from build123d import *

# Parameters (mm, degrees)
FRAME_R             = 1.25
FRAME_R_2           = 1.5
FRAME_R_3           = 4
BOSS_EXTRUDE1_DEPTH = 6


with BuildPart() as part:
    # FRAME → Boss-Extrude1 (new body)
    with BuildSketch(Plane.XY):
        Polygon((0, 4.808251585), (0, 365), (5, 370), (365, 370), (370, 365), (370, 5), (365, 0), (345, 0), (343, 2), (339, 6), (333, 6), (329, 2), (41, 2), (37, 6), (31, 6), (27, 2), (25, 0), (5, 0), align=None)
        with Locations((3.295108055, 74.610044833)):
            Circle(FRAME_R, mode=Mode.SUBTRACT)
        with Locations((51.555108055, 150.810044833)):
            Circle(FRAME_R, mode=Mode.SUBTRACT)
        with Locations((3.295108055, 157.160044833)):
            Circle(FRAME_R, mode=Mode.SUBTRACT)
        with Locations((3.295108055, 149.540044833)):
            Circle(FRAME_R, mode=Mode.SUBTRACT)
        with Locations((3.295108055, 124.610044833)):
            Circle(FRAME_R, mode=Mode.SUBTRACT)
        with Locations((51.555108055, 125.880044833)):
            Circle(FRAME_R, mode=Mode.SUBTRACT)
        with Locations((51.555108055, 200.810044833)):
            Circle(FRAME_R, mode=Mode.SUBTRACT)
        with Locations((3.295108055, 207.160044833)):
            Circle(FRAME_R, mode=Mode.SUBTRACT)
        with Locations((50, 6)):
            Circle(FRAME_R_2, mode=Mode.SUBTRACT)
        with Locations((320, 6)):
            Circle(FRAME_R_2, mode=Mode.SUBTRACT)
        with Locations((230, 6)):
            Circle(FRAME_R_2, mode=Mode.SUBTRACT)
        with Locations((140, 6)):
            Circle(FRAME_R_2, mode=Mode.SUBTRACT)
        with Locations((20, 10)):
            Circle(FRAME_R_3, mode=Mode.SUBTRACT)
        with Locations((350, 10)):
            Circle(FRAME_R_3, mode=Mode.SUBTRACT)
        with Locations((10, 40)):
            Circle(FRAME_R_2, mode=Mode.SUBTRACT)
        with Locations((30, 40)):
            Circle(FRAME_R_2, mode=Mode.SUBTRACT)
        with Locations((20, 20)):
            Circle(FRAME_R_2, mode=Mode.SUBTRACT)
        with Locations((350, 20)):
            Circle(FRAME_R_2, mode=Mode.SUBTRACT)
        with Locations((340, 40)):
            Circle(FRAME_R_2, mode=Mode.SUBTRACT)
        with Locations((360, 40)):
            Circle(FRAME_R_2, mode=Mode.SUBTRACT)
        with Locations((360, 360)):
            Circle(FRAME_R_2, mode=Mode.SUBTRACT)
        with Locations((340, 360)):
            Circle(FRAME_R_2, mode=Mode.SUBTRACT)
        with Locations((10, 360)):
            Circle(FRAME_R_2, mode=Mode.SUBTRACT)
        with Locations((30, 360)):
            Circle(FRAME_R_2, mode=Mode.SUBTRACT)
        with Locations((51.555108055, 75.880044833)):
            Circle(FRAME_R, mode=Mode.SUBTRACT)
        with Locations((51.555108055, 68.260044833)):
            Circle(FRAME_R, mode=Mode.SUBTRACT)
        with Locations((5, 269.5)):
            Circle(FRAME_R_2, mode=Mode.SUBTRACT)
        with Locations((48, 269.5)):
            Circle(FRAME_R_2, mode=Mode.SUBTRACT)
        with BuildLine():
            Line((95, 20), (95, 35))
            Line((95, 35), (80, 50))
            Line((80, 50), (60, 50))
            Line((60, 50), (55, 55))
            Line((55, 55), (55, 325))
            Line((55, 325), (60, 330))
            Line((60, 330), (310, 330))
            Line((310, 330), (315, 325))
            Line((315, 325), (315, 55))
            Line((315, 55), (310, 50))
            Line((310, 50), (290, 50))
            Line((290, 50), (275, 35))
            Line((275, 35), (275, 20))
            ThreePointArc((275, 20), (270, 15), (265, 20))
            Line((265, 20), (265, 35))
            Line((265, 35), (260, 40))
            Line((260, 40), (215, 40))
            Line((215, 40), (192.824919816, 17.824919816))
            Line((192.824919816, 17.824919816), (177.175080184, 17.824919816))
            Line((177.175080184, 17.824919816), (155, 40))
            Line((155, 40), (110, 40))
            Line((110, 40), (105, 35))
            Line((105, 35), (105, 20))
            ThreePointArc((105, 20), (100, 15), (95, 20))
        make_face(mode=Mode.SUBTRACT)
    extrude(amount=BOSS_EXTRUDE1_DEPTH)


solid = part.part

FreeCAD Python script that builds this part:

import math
import FreeCAD as App
import Part
import Sketcher
from FreeCAD import Vector

doc = App.newDocument("Part")
body = doc.addObject("PartDesign::Body", "Body")

# Sketch on XY plane
sketch1 = doc.addObject("Sketcher::SketchObject", "Sketch")
body.addObject(sketch1)
sketch1.AttachmentSupport = (doc.XY_Plane, [""])
sketch1.MapMode = "FlatFace"
sketch1.addGeometry([
    Part.LineSegment(Vector(0, 365, 0), Vector(0, 4.808252, 0)),  # 0
    Part.LineSegment(Vector(0, 4.808252, 0), Vector(5, 0, 0)),  # 1
    Part.LineSegment(Vector(5, 0, 0), Vector(25, 0, 0)),  # 2
    Part.LineSegment(Vector(25, 0, 0), Vector(31, 6, 0)),  # 3
    Part.LineSegment(Vector(31, 6, 0), Vector(37, 6, 0)),  # 4
    Part.LineSegment(Vector(37, 6, 0), Vector(41, 2, 0)),  # 5
    Part.LineSegment(Vector(41, 2, 0), Vector(329, 2, 0)),  # 6
    Part.LineSegment(Vector(329, 2, 0), Vector(333, 6, 0)),  # 7
    Part.LineSegment(Vector(333, 6, 0), Vector(339, 6, 0)),  # 8
    Part.LineSegment(Vector(339, 6, 0), Vector(345, 0, 0)),  # 9
    Part.LineSegment(Vector(345, 0, 0), Vector(365, 0, 0)),  # 10
    Part.LineSegment(Vector(365, 0, 0), Vector(370, 5, 0)),  # 11
    Part.LineSegment(Vector(370, 5, 0), Vector(370, 365, 0)),  # 12
    Part.LineSegment(Vector(370, 365, 0), Vector(365, 370, 0)),  # 13
    Part.LineSegment(Vector(365, 370, 0), Vector(5, 370, 0)),  # 14
    Part.LineSegment(Vector(5, 370, 0), Vector(0, 365, 0)),  # 15
    Part.Circle(Vector(350, 10, 0), Vector(0, 0, 1), 4),  # 16
    Part.Circle(Vector(350, 20, 0), Vector(0, 0, 1), 1.5),  # 17
    Part.Circle(Vector(320, 6, 0), Vector(0, 0, 1), 1.5),  # 18
    Part.Circle(Vector(360, 40, 0), Vector(0, 0, 1), 1.5),  # 19
    Part.Circle(Vector(340, 40, 0), Vector(0, 0, 1), 1.5),  # 20
    Part.Circle(Vector(230, 6, 0), Vector(0, 0, 1), 1.5),  # 21
    Part.LineSegment(Vector(95, 20, 0), Vector(95, 35, 0)),  # 22
    Part.LineSegment(Vector(95, 35, 0), Vector(80, 50, 0)),  # 23
    Part.LineSegment(Vector(80, 50, 0), Vector(60, 50, 0)),  # 24
    Part.LineSegment(Vector(60, 50, 0), Vector(55, 55, 0)),  # 25
    Part.LineSegment(Vector(55, 55, 0), Vector(55, 325, 0)),  # 26
    Part.LineSegment(Vector(55, 325, 0), Vector(60, 330, 0)),  # 27
    Part.LineSegment(Vector(60, 330, 0), Vector(310, 330, 0)),  # 28
    Part.LineSegment(Vector(310, 330, 0), Vector(315, 325, 0)),  # 29
    Part.LineSegment(Vector(315, 325, 0), Vector(315, 55, 0)),  # 30
    Part.LineSegment(Vector(315, 55, 0), Vector(310, 50, 0)),  # 31
    Part.LineSegment(Vector(310, 50, 0), Vector(290, 50, 0)),  # 32
    Part.LineSegment(Vector(290, 50, 0), Vector(275, 35, 0)),  # 33
    Part.LineSegment(Vector(275, 35, 0), Vector(275, 20, 0)),  # 34
    Part.ArcOfCircle(Part.Circle(Vector(270, 20, 0), Vector(0, 0, 1), 5), math.radians(180), math.radians(360)),  # 35
    Part.LineSegment(Vector(265, 20, 0), Vector(265, 35, 0)),  # 36
    Part.LineSegment(Vector(265, 35, 0), Vector(260, 40, 0)),  # 37
    Part.LineSegment(Vector(260, 40, 0), Vector(215, 40, 0)),  # 38
    Part.LineSegment(Vector(215, 40, 0), Vector(192.82492, 17.82492, 0)),  # 39
    Part.LineSegment(Vector(192.82492, 17.82492, 0), Vector(177.17508, 17.82492, 0)),  # 40
    Part.LineSegment(Vector(177.17508, 17.82492, 0), Vector(155, 40, 0)),  # 41
    Part.LineSegment(Vector(155, 40, 0), Vector(110, 40, 0)),  # 42
    Part.LineSegment(Vector(110, 40, 0), Vector(105, 35, 0)),  # 43
    Part.LineSegment(Vector(105, 35, 0), Vector(105, 20, 0)),  # 44
    Part.ArcOfCircle(Part.Circle(Vector(100, 20, 0), Vector(0, 0, 1), 5), math.radians(180), math.radians(360)),  # 45
    Part.Circle(Vector(140, 6, 0), Vector(0, 0, 1), 1.5),  # 46
    Part.Circle(Vector(50, 6, 0), Vector(0, 0, 1), 1.5),  # 47
    Part.Circle(Vector(20, 10, 0), Vector(0, 0, 1), 4),  # 48
    Part.Circle(Vector(20, 20, 0), Vector(0, 0, 1), 1.5),  # 49
    Part.Circle(Vector(30, 40, 0), Vector(0, 0, 1), 1.5),  # 50
    Part.Circle(Vector(10, 40, 0), Vector(0, 0, 1), 1.5),  # 51
    Part.Circle(Vector(51.555108, 68.260045, 0), Vector(0, 0, 1), 1.25),  # 52
    Part.Circle(Vector(51.555108, 75.880045, 0), Vector(0, 0, 1), 1.25),  # 53
    Part.Circle(Vector(3.295108, 74.610045, 0), Vector(0, 0, 1), 1.25),  # 54
    Part.Circle(Vector(51.555108, 125.880045, 0), Vector(0, 0, 1), 1.25),  # 55
    Part.Circle(Vector(3.295108, 124.610045, 0), Vector(0, 0, 1), 1.25),  # 56
    Part.Circle(Vector(51.555108, 150.810045, 0), Vector(0, 0, 1), 1.25),  # 57
    Part.Circle(Vector(3.295108, 149.540045, 0), Vector(0, 0, 1), 1.25),  # 58
    Part.Circle(Vector(3.295108, 157.160045, 0), Vector(0, 0, 1), 1.25),  # 59
    Part.Circle(Vector(360, 360, 0), Vector(0, 0, 1), 1.5),  # 60
    Part.Circle(Vector(340, 360, 0), Vector(0, 0, 1), 1.5),  # 61
    Part.Circle(Vector(51.555108, 200.810045, 0), Vector(0, 0, 1), 1.25),  # 62
    Part.Circle(Vector(3.295108, 207.160045, 0), Vector(0, 0, 1), 1.25),  # 63
    Part.Circle(Vector(48, 269.5, 0), Vector(0, 0, 1), 1.5),  # 64
    Part.Circle(Vector(5, 269.5, 0), Vector(0, 0, 1), 1.5),  # 65
    Part.Circle(Vector(30, 360, 0), Vector(0, 0, 1), 1.5),  # 66
    Part.Circle(Vector(10, 360, 0), Vector(0, 0, 1), 1.5),  # 67
], False)
sketch1.addConstraint([
    Sketcher.Constraint("Coincident", 0, 2, 1, 1),
    Sketcher.Constraint("Coincident", 1, 2, 2, 1),
    Sketcher.Constraint("Coincident", 2, 2, 3, 1),
    Sketcher.Constraint("Coincident", 3, 2, 4, 1),
    Sketcher.Constraint("Coincident", 4, 2, 5, 1),
    Sketcher.Constraint("Coincident", 5, 2, 6, 1),
    Sketcher.Constraint("Coincident", 6, 2, 7, 1),
    Sketcher.Constraint("Coincident", 7, 2, 8, 1),
    Sketcher.Constraint("Coincident", 8, 2, 9, 1),
    Sketcher.Constraint("Coincident", 9, 2, 10, 1),
    Sketcher.Constraint("Coincident", 10, 2, 11, 1),
    Sketcher.Constraint("Coincident", 11, 2, 12, 1),
    Sketcher.Constraint("Coincident", 12, 2, 13, 1),
    Sketcher.Constraint("Coincident", 13, 2, 14, 1),
    Sketcher.Constraint("Coincident", 14, 2, 15, 1),
    Sketcher.Constraint("Coincident", 15, 2, 0, 1),
    Sketcher.Constraint("Coincident", 22, 2, 23, 1),
    Sketcher.Constraint("Coincident", 23, 2, 24, 1),
    Sketcher.Constraint("Coincident", 24, 2, 25, 1),
    Sketcher.Constraint("Coincident", 25, 2, 26, 1),
    Sketcher.Constraint("Coincident", 26, 2, 27, 1),
    Sketcher.Constraint("Coincident", 27, 2, 28, 1),
    Sketcher.Constraint("Coincident", 28, 2, 29, 1),
    Sketcher.Constraint("Coincident", 29, 2, 30, 1),
    Sketcher.Constraint("Coincident", 30, 2, 31, 1),
    Sketcher.Constraint("Coincident", 31, 2, 32, 1),
    Sketcher.Constraint("Coincident", 32, 2, 33, 1),
    Sketcher.Constraint("Coincident", 33, 2, 34, 1),
    Sketcher.Constraint("Tangent", 34, 2, 35, 2),
    Sketcher.Constraint("Tangent", 35, 1, 36, 1),
    Sketcher.Constraint("Coincident", 36, 2, 37, 1),
    Sketcher.Constraint("Coincident", 37, 2, 38, 1),
    Sketcher.Constraint("Coincident", 38, 2, 39, 1),
    Sketcher.Constraint("Coincident", 39, 2, 40, 1),
    Sketcher.Constraint("Coincident", 40, 2, 41, 1),
    Sketcher.Constraint("Coincident", 41, 2, 42, 1),
    Sketcher.Constraint("Coincident", 42, 2, 43, 1),
    Sketcher.Constraint("Coincident", 43, 2, 44, 1),
    Sketcher.Constraint("Tangent", 44, 2, 45, 2),
    Sketcher.Constraint("Tangent", 45, 1, 22, 1),
    Sketcher.Constraint("Vertical", 0),
    Sketcher.Constraint("Horizontal", 2),
    Sketcher.Constraint("Horizontal", 4),
    Sketcher.Constraint("Horizontal", 6),
    Sketcher.Constraint("Horizontal", 8),
    Sketcher.Constraint("Horizontal", 10),
    Sketcher.Constraint("Vertical", 12),
    Sketcher.Constraint("Horizontal", 14),
    Sketcher.Constraint("Vertical", 22),
    Sketcher.Constraint("Horizontal", 24),
    Sketcher.Constraint("Vertical", 26),
    Sketcher.Constraint("Horizontal", 28),
    Sketcher.Constraint("Vertical", 30),
    Sketcher.Constraint("Horizontal", 32),
    Sketcher.Constraint("Vertical", 34),
    Sketcher.Constraint("Vertical", 36),
    Sketcher.Constraint("Horizontal", 38),
    Sketcher.Constraint("Horizontal", 40),
    Sketcher.Constraint("Horizontal", 42),
    Sketcher.Constraint("Vertical", 44),
    Sketcher.Constraint("Equal", 17, 18),
    Sketcher.Constraint("Equal", 18, 19),
    Sketcher.Constraint("Equal", 19, 20),
    Sketcher.Constraint("Equal", 20, 21),
    Sketcher.Constraint("Equal", 35, 45),
    Sketcher.Constraint("Equal", 21, 46),
    Sketcher.Constraint("Equal", 46, 47),
    Sketcher.Constraint("Equal", 16, 48),
    Sketcher.Constraint("Equal", 47, 49),
    Sketcher.Constraint("Equal", 49, 50),
    Sketcher.Constraint("Equal", 50, 51),
    Sketcher.Constraint("Equal", 52, 53),
    Sketcher.Constraint("Equal", 53, 54),
    Sketcher.Constraint("Equal", 54, 55),
    Sketcher.Constraint("Equal", 55, 56),
    Sketcher.Constraint("Equal", 56, 57),
    Sketcher.Constraint("Equal", 57, 58),
    Sketcher.Constraint("Equal", 58, 59),
    Sketcher.Constraint("Equal", 51, 60),
    Sketcher.Constraint("Equal", 60, 61),
    Sketcher.Constraint("Equal", 59, 62),
    Sketcher.Constraint("Equal", 62, 63),
    Sketcher.Constraint("Equal", 61, 64),
    Sketcher.Constraint("Equal", 64, 65),
    Sketcher.Constraint("Equal", 65, 66),
    Sketcher.Constraint("Equal", 66, 67),
    Sketcher.Constraint("PointOnObject", 0, 2, -2),
    Sketcher.Constraint("PointOnObject", 1, 2, -1),
    Sketcher.Constraint("PointOnObject", 9, 2, -1),
    Sketcher.Constraint("Perpendicular", 3, 5),
    Sketcher.Constraint("Perpendicular", 5, 7),
    Sketcher.Constraint("Perpendicular", 7, 9),
    Sketcher.Constraint("Perpendicular", 9, 11),
    Sketcher.Constraint("Perpendicular", 11, 13),
    Sketcher.Constraint("Perpendicular", 13, 15),
    Sketcher.Constraint("Perpendicular", 15, 23),
    Sketcher.Constraint("Parallel", 23, 25),
    Sketcher.Constraint("Perpendicular", 25, 27),
    Sketcher.Constraint("Perpendicular", 27, 29),
    Sketcher.Constraint("Perpendicular", 29, 31),
    Sketcher.Constraint("Parallel", 31, 33),
    Sketcher.Constraint("Perpendicular", 33, 37),
    Sketcher.Constraint("Perpendicular", 37, 39),
    Sketcher.Constraint("Perpendicular", 39, 41),
    Sketcher.Constraint("Perpendicular", 41, 43),
    Sketcher.Constraint("Horizontal", 19, 3, 20, 3),
    Sketcher.Constraint("Horizontal", 18, 3, 21, 3),
    Sketcher.Constraint("Horizontal", 17, 3, 35, 3),
    Sketcher.Constraint("Horizontal", 35, 3, 45, 3),
    Sketcher.Constraint("Horizontal", 21, 3, 46, 3),
    Sketcher.Constraint("Horizontal", 46, 3, 47, 3),
    Sketcher.Constraint("Horizontal", 16, 3, 48, 3),
    Sketcher.Constraint("Horizontal", 45, 3, 49, 3),
    Sketcher.Constraint("Horizontal", 20, 3, 50, 3),
    Sketcher.Constraint("Horizontal", 50, 3, 51, 3),
    Sketcher.Constraint("Horizontal", 60, 3, 61, 3),
    Sketcher.Constraint("Horizontal", 64, 3, 65, 3),
    Sketcher.Constraint("Horizontal", 61, 3, 66, 3),
    Sketcher.Constraint("Horizontal", 66, 3, 67, 3),
    Sketcher.Constraint("Horizontal", 47, 3, 3, 2),
    Sketcher.Constraint("Horizontal", 4, 2, 7, 2),
    Sketcher.Constraint("Horizontal", 12, 2, 15, 2),
    Sketcher.Constraint("Horizontal", 26, 2, 29, 2),
    Sketcher.Constraint("Horizontal", 25, 2, 30, 2),
    Sketcher.Constraint("Horizontal", 24, 2, 31, 2),
    Sketcher.Constraint("Horizontal", 22, 2, 33, 2),
    Sketcher.Constraint("Horizontal", 33, 2, 36, 2),
    Sketcher.Constraint("Horizontal", 51, 3, 37, 2),
    Sketcher.Constraint("Horizontal", 38, 2, 41, 2),
    Sketcher.Constraint("Horizontal", 36, 2, 43, 2),
    Sketcher.Constraint("Vertical", 16, 3, 17, 3),
    Sketcher.Constraint("Vertical", 48, 3, 49, 3),
    Sketcher.Constraint("Vertical", 52, 3, 53, 3),
    Sketcher.Constraint("Vertical", 53, 3, 55, 3),
    Sketcher.Constraint("Vertical", 54, 3, 56, 3),
    Sketcher.Constraint("Vertical", 55, 3, 57, 3),
    Sketcher.Constraint("Vertical", 56, 3, 58, 3),
    Sketcher.Constraint("Vertical", 58, 3, 59, 3),
    Sketcher.Constraint("Vertical", 19, 3, 60, 3),
    Sketcher.Constraint("Vertical", 20, 3, 61, 3),
    Sketcher.Constraint("Vertical", 57, 3, 62, 3),
    Sketcher.Constraint("Vertical", 59, 3, 63, 3),
    Sketcher.Constraint("Vertical", 50, 3, 66, 3),
    Sketcher.Constraint("Vertical", 51, 3, 67, 3),
    Sketcher.Constraint("Vertical", 65, 3, 1, 2),
    Sketcher.Constraint("Vertical", 10, 2, 13, 2),
    Sketcher.Constraint("Vertical", 1, 2, 14, 2),
    Sketcher.Constraint("Vertical", 24, 2, 27, 2),
    Sketcher.Constraint("Vertical", 28, 2, 31, 2),
    Sketcher.Constraint("Equal", 4, 8),
    Sketcher.Constraint("Equal", 2, 10),
    Sketcher.Constraint("Equal", 10, 24),
    Sketcher.Constraint("Equal", 24, 32),
    Sketcher.Constraint("Equal", 38, 42),
    Sketcher.Constraint("Equal", 14, 12),
    Sketcher.Constraint("Equal", 15, 25),
    Sketcher.Constraint("Equal", 31, 37),
    Sketcher.Constraint("Diameter", 16, 8.0),
    Sketcher.Constraint("Diameter", 17, 3.0),
    Sketcher.Constraint("Radius", 35, 5.0),
    Sketcher.Constraint("Diameter", 52, 2.5),
    Sketcher.Constraint("DistanceX", 2, 1, 2, 2, 20.0),
    Sketcher.Constraint("DistanceX", 4, 1, 4, 2, 6.0),
    Sketcher.Constraint("DistanceX", 6, 1, 6, 2, 288.0),
    Sketcher.Constraint("DistanceX", 14, 2, 14, 1, 360.0),
    Sketcher.Constraint("DistanceX", 28, 1, 28, 2, 250.0),
    Sketcher.Constraint("DistanceX", 38, 2, 38, 1, 45.0),
    Sketcher.Constraint("DistanceY", 22, 1, 22, 2, 15.0),
    Sketcher.Constraint("DistanceY", 26, 1, 26, 2, 270.0),
    Sketcher.Constraint("DistanceX", -1, 1, 16, 3, 350.0),
    Sketcher.Constraint("DistanceY", -1, 1, 16, 3, 10.0),
    Sketcher.Constraint("DistanceY", -1, 1, 17, 3, 20.0),
    Sketcher.Constraint("DistanceX", -1, 1, 18, 3, 320.0),
    Sketcher.Constraint("DistanceY", -1, 1, 18, 3, 6.0),
    Sketcher.Constraint("DistanceX", -1, 1, 19, 3, 360.0),
    Sketcher.Constraint("DistanceY", -1, 1, 19, 3, 40.0),
    Sketcher.Constraint("DistanceX", -1, 1, 20, 3, 340.0),
    Sketcher.Constraint("DistanceX", -1, 1, 21, 3, 230.0),
    Sketcher.Constraint("DistanceX", -1, 1, 35, 3, 270.0),
    Sketcher.Constraint("DistanceX", -1, 1, 45, 3, 100.0),
    Sketcher.Constraint("DistanceX", -1, 1, 46, 3, 140.0),
    Sketcher.Constraint("DistanceX", -1, 1, 47, 3, 50.0),
    Sketcher.Constraint("DistanceX", -1, 1, 48, 3, 20.0),
    Sketcher.Constraint("DistanceX", -1, 1, 50, 3, 30.0),
    Sketcher.Constraint("DistanceX", -1, 1, 51, 3, 10.0),
    Sketcher.Constraint("DistanceY", -1, 1, 60, 3, 360.0),
    Sketcher.Constraint("DistanceX", -1, 1, 64, 3, 48.0),
    Sketcher.Constraint("DistanceY", -1, 1, 64, 3, 269.5),
    Sketcher.Constraint("Distance", 39, 31.360299),
    Sketcher.Constraint("DistanceY", 0, 2, 0, 1, 360.191748),
    Sketcher.Constraint("DistanceX", -1, 1, 52, 3, 51.555108),
    Sketcher.Constraint("DistanceX", -1, 1, 54, 3, 3.295108),
    Sketcher.Constraint("DistanceY", -1, 1, 52, 3, 68.260045),
    Sketcher.Constraint("DistanceY", -1, 1, 53, 3, 75.880045),
    Sketcher.Constraint("DistanceY", -1, 1, 54, 3, 74.610045),
    Sketcher.Constraint("DistanceY", -1, 1, 55, 3, 125.880045),
    Sketcher.Constraint("DistanceY", -1, 1, 56, 3, 124.610045),
    Sketcher.Constraint("DistanceY", -1, 1, 57, 3, 150.810045),
    Sketcher.Constraint("DistanceY", -1, 1, 58, 3, 149.540045),
    Sketcher.Constraint("DistanceY", -1, 1, 59, 3, 157.160045),
    Sketcher.Constraint("DistanceY", -1, 1, 62, 3, 200.810045),
    Sketcher.Constraint("DistanceY", -1, 1, 63, 3, 207.160045),
])
pad1 = doc.addObject("PartDesign::Pad", "Pad")
body.addObject(pad1)
pad1.Profile = sketch1
pad1.Length = 6

doc.recompute()
